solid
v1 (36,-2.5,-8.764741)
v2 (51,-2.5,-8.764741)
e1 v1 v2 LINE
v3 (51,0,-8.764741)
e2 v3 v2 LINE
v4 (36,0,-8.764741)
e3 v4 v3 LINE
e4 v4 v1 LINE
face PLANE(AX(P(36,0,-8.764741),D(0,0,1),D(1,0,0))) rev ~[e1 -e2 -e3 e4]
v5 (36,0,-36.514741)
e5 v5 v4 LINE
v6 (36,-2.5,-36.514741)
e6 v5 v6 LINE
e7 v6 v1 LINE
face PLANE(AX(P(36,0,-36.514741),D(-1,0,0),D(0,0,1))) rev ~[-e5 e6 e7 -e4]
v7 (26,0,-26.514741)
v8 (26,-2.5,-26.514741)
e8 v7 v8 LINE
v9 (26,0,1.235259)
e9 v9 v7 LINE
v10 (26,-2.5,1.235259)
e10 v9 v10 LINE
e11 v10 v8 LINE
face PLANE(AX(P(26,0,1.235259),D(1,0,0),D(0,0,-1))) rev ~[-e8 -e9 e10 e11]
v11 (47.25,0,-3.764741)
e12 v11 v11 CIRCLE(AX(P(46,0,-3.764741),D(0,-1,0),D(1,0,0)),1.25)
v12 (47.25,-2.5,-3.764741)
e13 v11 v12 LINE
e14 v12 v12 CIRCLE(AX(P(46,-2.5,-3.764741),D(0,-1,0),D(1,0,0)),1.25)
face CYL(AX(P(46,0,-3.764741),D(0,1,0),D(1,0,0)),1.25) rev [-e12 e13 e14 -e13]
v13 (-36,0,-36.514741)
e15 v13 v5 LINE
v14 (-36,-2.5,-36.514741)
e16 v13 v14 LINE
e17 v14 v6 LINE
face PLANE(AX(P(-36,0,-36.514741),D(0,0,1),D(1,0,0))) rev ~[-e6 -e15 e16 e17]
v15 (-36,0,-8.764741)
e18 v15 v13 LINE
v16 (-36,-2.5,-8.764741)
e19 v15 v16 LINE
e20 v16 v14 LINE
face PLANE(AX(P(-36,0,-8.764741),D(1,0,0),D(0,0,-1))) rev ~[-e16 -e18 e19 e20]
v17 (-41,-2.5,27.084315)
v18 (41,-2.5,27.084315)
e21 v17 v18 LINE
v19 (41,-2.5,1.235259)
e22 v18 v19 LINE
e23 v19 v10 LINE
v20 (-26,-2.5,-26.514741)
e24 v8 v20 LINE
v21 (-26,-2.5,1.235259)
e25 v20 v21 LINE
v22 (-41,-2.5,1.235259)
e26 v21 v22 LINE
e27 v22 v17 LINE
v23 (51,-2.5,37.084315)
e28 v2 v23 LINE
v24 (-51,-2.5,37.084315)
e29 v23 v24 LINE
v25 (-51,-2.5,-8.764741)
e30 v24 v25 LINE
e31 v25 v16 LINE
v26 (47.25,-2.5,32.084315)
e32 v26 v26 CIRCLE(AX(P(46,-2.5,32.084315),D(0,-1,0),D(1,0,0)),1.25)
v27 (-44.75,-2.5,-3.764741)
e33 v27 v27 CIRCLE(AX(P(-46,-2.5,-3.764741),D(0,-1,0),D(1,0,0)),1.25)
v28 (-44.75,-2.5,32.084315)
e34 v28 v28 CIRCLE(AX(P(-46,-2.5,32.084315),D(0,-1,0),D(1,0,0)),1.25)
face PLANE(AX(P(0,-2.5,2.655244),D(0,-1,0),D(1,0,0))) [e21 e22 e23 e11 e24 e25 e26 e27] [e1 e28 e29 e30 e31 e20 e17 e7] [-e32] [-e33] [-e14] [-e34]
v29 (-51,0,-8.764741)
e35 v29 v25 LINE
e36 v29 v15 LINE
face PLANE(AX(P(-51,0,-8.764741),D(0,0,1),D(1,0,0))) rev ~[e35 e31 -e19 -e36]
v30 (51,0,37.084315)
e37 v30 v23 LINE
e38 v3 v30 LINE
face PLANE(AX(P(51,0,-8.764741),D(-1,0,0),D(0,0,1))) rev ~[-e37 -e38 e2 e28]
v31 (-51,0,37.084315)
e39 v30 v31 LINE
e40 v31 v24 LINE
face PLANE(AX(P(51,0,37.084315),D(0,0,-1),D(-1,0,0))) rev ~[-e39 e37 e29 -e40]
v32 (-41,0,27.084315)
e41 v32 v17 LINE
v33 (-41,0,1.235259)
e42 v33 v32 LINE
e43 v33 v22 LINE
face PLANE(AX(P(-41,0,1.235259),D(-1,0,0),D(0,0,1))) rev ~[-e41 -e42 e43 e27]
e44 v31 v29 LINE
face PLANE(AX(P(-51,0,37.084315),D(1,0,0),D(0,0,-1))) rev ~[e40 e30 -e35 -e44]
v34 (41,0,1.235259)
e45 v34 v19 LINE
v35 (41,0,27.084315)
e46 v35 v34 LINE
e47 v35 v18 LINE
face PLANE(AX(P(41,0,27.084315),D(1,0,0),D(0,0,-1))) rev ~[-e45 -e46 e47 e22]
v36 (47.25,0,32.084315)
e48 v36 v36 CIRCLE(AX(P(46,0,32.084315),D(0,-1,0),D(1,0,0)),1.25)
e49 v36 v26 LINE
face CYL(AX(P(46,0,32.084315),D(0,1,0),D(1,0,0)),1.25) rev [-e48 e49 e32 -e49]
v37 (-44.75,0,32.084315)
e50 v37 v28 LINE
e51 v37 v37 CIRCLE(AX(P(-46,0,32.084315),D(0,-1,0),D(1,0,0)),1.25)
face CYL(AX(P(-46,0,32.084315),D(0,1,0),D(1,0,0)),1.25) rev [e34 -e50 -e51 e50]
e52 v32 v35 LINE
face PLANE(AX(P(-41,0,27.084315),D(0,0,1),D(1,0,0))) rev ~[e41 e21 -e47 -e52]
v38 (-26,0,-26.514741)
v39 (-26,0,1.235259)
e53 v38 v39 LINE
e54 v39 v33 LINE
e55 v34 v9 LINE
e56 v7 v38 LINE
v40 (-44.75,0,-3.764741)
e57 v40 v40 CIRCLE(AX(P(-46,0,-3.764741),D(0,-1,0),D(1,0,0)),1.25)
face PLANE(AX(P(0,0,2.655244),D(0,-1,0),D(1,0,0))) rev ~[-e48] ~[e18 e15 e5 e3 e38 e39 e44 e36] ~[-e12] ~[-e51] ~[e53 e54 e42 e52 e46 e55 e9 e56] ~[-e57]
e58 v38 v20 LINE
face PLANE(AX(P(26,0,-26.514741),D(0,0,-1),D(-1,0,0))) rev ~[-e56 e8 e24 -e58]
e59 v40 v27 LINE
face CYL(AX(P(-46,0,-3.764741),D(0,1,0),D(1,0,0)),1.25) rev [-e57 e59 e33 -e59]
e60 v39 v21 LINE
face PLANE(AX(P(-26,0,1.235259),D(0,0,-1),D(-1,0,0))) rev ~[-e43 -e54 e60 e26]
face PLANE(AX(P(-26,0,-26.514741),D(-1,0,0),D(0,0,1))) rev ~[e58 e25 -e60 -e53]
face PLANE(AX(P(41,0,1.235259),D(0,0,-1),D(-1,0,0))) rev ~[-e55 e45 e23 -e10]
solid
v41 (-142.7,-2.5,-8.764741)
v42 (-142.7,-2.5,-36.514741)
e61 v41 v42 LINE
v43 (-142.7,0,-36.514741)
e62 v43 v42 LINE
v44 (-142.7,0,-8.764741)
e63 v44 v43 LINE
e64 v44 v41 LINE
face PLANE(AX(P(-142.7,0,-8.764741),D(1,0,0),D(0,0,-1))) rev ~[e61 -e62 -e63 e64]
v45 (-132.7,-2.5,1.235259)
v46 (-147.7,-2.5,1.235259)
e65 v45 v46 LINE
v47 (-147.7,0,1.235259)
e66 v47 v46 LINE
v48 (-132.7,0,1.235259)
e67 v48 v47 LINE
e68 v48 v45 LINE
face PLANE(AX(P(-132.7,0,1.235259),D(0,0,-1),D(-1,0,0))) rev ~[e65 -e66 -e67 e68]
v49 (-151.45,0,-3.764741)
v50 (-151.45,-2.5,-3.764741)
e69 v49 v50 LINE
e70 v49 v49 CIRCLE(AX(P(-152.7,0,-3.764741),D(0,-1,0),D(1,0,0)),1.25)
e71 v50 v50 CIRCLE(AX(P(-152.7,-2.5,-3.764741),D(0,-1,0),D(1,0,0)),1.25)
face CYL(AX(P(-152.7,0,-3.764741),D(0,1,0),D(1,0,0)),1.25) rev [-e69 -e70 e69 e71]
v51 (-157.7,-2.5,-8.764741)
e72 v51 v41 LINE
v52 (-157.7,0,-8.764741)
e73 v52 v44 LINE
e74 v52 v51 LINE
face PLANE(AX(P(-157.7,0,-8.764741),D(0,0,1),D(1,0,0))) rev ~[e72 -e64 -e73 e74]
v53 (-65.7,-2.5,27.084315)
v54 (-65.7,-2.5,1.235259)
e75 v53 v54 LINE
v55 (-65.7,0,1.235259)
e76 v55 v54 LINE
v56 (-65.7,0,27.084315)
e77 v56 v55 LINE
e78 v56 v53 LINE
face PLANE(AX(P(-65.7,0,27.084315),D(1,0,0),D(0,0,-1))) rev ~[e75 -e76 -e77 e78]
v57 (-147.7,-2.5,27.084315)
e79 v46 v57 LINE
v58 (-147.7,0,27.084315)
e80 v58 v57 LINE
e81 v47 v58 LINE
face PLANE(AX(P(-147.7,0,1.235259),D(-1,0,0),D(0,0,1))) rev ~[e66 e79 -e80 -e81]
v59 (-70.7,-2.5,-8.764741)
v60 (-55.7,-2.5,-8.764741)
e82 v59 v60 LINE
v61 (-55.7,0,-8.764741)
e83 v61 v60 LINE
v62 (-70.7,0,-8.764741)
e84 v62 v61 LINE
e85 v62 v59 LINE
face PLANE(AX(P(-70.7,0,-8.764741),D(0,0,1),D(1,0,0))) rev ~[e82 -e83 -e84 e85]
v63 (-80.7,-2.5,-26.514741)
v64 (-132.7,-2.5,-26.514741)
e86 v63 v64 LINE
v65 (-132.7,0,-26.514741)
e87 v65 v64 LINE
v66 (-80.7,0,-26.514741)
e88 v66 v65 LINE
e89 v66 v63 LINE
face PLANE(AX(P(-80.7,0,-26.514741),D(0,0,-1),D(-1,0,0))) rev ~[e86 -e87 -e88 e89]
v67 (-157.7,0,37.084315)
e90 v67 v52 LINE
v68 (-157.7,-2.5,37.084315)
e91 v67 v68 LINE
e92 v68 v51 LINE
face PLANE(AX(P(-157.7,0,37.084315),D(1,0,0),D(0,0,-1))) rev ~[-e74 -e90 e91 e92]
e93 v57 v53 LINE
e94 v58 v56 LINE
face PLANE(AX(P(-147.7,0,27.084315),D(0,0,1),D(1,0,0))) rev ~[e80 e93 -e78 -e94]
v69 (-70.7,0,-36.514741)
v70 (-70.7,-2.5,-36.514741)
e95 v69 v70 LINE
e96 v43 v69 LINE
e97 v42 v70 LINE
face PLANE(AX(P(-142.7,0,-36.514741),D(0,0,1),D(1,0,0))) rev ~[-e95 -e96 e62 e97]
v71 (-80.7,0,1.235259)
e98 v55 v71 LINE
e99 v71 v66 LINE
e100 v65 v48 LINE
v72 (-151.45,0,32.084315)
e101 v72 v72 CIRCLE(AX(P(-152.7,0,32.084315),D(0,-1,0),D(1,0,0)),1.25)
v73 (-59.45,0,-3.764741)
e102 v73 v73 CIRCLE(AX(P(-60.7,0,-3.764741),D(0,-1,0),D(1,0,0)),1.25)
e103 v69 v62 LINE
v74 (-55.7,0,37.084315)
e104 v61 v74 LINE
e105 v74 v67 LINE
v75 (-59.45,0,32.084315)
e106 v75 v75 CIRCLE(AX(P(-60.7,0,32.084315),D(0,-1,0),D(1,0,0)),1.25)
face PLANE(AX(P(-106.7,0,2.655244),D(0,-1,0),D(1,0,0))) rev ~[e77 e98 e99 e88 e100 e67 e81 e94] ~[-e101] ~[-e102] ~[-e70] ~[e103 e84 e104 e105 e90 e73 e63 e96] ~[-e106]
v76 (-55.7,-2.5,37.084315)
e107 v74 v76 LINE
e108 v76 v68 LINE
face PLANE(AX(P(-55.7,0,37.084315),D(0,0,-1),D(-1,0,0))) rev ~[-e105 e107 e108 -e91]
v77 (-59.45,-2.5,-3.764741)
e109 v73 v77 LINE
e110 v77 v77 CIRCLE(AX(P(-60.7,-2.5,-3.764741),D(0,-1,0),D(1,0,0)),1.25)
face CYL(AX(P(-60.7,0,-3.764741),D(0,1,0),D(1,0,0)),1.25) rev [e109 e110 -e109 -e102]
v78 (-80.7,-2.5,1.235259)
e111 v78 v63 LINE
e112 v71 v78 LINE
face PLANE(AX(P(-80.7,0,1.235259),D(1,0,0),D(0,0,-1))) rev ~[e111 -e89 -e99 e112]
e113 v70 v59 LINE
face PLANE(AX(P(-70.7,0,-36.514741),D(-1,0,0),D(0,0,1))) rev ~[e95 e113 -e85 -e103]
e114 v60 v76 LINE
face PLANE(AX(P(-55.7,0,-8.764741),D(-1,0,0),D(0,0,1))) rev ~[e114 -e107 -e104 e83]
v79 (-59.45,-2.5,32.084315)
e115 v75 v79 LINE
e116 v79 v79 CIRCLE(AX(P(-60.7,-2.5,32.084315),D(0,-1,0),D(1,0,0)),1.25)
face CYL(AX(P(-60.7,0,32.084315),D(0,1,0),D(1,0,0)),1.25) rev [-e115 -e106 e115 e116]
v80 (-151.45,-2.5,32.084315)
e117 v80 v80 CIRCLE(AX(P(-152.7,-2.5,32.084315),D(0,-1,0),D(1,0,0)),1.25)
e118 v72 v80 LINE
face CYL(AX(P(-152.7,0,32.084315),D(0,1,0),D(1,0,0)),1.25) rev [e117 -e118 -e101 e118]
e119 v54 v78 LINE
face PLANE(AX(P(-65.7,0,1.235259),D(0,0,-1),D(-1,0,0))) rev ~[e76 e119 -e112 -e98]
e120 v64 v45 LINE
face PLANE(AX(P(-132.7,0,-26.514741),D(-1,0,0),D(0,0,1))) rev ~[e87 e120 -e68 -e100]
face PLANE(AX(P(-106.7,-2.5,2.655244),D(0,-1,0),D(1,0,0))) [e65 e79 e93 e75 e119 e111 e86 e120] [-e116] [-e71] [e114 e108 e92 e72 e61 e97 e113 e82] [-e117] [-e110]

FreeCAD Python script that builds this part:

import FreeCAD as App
import Part
import Sketcher
from FreeCAD import Vector
Q = App.Units.Quantity


def add_polygon(sketch, points):
    """Adds a closed chain of lines whose ends are joined by coincident constraints."""
    first, n = sketch.GeometryCount, len(points)
    for a, b in zip(points, points[1:] + points[:1]):
        sketch.addGeometry(Part.LineSegment(App.Vector(*a, 0), App.Vector(*b, 0)), False)
    for i in range(n):
        sketch.addConstraint(Sketcher.Constraint("Coincident", first + i, 2, first + (i + 1) % n, 1))

doc = App.newDocument("Part")
body = doc.addObject("PartDesign::Body", "Body")
body.AllowCompound = True

sketch1 = body.newObject("Sketcher::SketchObject", "Sketch")
sketch1.AttachmentSupport = (doc.getObject("XZ_Plane"), [""])
sketch1.MapMode = "FlatFace"
add_polygon(sketch1, [(-36, -8.764741), (-36, -36.514741), (36, -36.514741), (36, -8.764741), (51, -8.764741), (51, 37.084315), (-51, 37.084315), (-51, -8.764741)])
sketch1.addGeometry(Part.Circle(Vector(-46, -3.764741, 0), Vector(0, 0, 1), 1.25), False)
add_polygon(sketch1, [(26, 1.235259), (26, -26.514741), (-26, -26.514741), (-26, 1.235259), (-41, 1.235259), (-41, 27.084315), (41, 27.084315), (41, 1.235259)])
sketch1.addGeometry(Part.Circle(Vector(46, -3.764741, 0), Vector(0, 0, 1), 1.25), False)
sketch1.addGeometry(Part.Circle(Vector(-46, 32.084315, 0), Vector(0, 0, 1), 1.25), False)
sketch1.addGeometry(Part.Circle(Vector(46, 32.084315, 0), Vector(0, 0, 1), 1.25), False)
add_polygon(sketch1, [(-157.7, -8.764741), (-142.7, -8.764741), (-142.7, -36.514741), (-70.7, -36.514741), (-70.7, -8.764741), (-55.7, -8.764741), (-55.7, 37.084315), (-157.7, 37.084315)])
sketch1.addGeometry(Part.Circle(Vector(-152.7, -3.764741, 0), Vector(0, 0, 1), 1.25), False)
add_polygon(sketch1, [(-80.7, -26.514741), (-132.7, -26.514741), (-132.7, 1.235259), (-147.7, 1.235259), (-147.7, 27.084315), (-65.7, 27.084315), (-65.7, 1.235259), (-80.7, 1.235259)])
sketch1.addGeometry(Part.Circle(Vector(-60.7, -3.764741, 0), Vector(0, 0, 1), 1.25), False)
sketch1.addGeometry(Part.Circle(Vector(-152.7, 32.084315, 0), Vector(0, 0, 1), 1.25), False)
sketch1.addGeometry(Part.Circle(Vector(-60.7, 32.084315, 0), Vector(0, 0, 1), 1.25), False)
sketch1.addConstraint([
    Sketcher.Constraint("Vertical", 0),
    Sketcher.Constraint("Horizontal", 1),
    Sketcher.Constraint("Vertical", 2),
    Sketcher.Constraint("Horizontal", 3),
    Sketcher.Constraint("Vertical", 4),
    Sketcher.Constraint("Horizontal", 5),
    Sketcher.Constraint("Vertical", 6),
    Sketcher.Constraint("Horizontal", 7),
    Sketcher.Constraint("Vertical", 9),
    Sketcher.Constraint("Horizontal", 10),
    Sketcher.Constraint("Vertical", 11),
    Sketcher.Constraint("Horizontal", 12),
    Sketcher.Constraint("Vertical", 13),
    Sketcher.Constraint("Horizontal", 14),
    Sketcher.Constraint("Vertical", 15),
    Sketcher.Constraint("Horizontal", 16),
    Sketcher.Constraint("Horizontal", 20),
    Sketcher.Constraint("Vertical", 21),
    Sketcher.Constraint("Horizontal", 22),
    Sketcher.Constraint("Vertical", 23),
    Sketcher.Constraint("Horizontal", 24),
    Sketcher.Constraint("Vertical", 25),
    Sketcher.Constraint("Horizontal", 26),
    Sketcher.Constraint("Vertical", 27),
    Sketcher.Constraint("Horizontal", 29),
    Sketcher.Constraint("Vertical", 30),
    Sketcher.Constraint("Horizontal", 31),
    Sketcher.Constraint("Vertical", 32),
    Sketcher.Constraint("Horizontal", 33),
    Sketcher.Constraint("Vertical", 34),
    Sketcher.Constraint("Horizontal", 35),
    Sketcher.Constraint("Vertical", 36),
    Sketcher.Constraint("Equal", 8, 17),
    Sketcher.Constraint("Equal", 17, 18),
    Sketcher.Constraint("Equal", 18, 19),
    Sketcher.Constraint("Equal", 19, 28),
    Sketcher.Constraint("Equal", 28, 37),
    Sketcher.Constraint("Equal", 37, 38),
    Sketcher.Constraint("Equal", 38, 39),
    Sketcher.Constraint("Symmetric", 8, 3, 17, 3, -2),
    Sketcher.Constraint("Symmetric", 18, 3, 19, 3, -2),
    Sketcher.Constraint("Symmetric", 3, 2, 6, 2, -2),
    Sketcher.Constraint("Symmetric", 12, 2, 15, 2, -2),
    Sketcher.Constraint("Horizontal", 17, 3, 28, 3),
    Sketcher.Constraint("Horizontal", 28, 3, 37, 3),
    Sketcher.Constraint("Horizontal", 19, 3, 38, 3),
    Sketcher.Constraint("Horizontal", 38, 3, 39, 3),
    Sketcher.Constraint("Horizontal", 7, 2, 20, 2),
    Sketcher.Constraint("Horizontal", 1, 2, 21, 2),
    Sketcher.Constraint("Horizontal", 20, 2, 23, 2),
    Sketcher.Constraint("Horizontal", 5, 2, 25, 2),
    Sketcher.Constraint("Horizontal", 10, 2, 29, 2),
    Sketcher.Constraint("Horizontal", 16, 2, 30, 2),
    Sketcher.Constraint("Horizontal", 14, 2, 32, 2),
    Sketcher.Constraint("Horizontal", 31, 2, 34, 2),
    Sketcher.Constraint("Vertical", 8, 3, 18, 3),
    Sketcher.Constraint("Vertical", 28, 3, 38, 3),
    Sketcher.Constraint("Vertical", 37, 3, 39, 3),
    Sketcher.Constraint("Equal", 3, 7),
    Sketcher.Constraint("Equal", 7, 12),
    Sketcher.Constraint("Equal", 12, 16),
    Sketcher.Constraint("Equal", 16, 20),
    Sketcher.Constraint("Equal", 1, 22),
    Sketcher.Constraint("Equal", 20, 24),
    Sketcher.Constraint("Equal", 10, 29),
    Sketcher.Constraint("Equal", 24, 31),
    Sketcher.Constraint("Equal", 14, 33),
    Sketcher.Constraint("Equal", 2, 9),
    Sketcher.Constraint("Diameter", 8, Q("2.5 mm")),
    Sketcher.Constraint("DistanceX", 1, 1, 1, 2, Q("72 mm")),
    Sketcher.Constraint("DistanceX", 3, 1, 3, 2, Q("15 mm")),
    Sketcher.Constraint("DistanceX", 10, 2, 10, 1, Q("52 mm")),
    Sketcher.Constraint("DistanceX", 8, 3, -1, 1, Q("46 mm")),
    Sketcher.Constraint("DistanceX", 28, 3, 37, 3, Q("92 mm")),
    Sketcher.Constraint("DistanceY", 2, 2, 17, 3, Q("5 mm")),
    Sketcher.Constraint("DistanceY", 19, 3, 4, 2, Q("5 mm")),
    Sketcher.Constraint("DistanceY", 1, 2, 9, 2, Q("10 mm")),
    Sketcher.Constraint("DistanceY", 13, 2, 18, 3, Q("5 mm")),
    Sketcher.Constraint("DistanceX", 28, 3, 20, 2, Q("10 mm")),
    Sketcher.Constraint("DistanceX", 21, 2, 29, 2, Q("10 mm")),
    Sketcher.Constraint("DistanceY", 0, 2, 0, 1, Q("27.75 mm")),
    Sketcher.Constraint("DistanceX", 28, 3, -1, 1, Q("152.7 mm")),
    Sketcher.Constraint("DistanceY", 4, 1, 4, 2, Q("45.849056 mm")),
    Sketcher.Constraint("DistanceY", 8, 3, -1, 1, Q("3.764741 mm")),
])
pad1 = body.newObject("PartDesign::Pad", "Pad")
pad1.Profile = sketch1
pad1.Length = 2.5

doc.recompute()
